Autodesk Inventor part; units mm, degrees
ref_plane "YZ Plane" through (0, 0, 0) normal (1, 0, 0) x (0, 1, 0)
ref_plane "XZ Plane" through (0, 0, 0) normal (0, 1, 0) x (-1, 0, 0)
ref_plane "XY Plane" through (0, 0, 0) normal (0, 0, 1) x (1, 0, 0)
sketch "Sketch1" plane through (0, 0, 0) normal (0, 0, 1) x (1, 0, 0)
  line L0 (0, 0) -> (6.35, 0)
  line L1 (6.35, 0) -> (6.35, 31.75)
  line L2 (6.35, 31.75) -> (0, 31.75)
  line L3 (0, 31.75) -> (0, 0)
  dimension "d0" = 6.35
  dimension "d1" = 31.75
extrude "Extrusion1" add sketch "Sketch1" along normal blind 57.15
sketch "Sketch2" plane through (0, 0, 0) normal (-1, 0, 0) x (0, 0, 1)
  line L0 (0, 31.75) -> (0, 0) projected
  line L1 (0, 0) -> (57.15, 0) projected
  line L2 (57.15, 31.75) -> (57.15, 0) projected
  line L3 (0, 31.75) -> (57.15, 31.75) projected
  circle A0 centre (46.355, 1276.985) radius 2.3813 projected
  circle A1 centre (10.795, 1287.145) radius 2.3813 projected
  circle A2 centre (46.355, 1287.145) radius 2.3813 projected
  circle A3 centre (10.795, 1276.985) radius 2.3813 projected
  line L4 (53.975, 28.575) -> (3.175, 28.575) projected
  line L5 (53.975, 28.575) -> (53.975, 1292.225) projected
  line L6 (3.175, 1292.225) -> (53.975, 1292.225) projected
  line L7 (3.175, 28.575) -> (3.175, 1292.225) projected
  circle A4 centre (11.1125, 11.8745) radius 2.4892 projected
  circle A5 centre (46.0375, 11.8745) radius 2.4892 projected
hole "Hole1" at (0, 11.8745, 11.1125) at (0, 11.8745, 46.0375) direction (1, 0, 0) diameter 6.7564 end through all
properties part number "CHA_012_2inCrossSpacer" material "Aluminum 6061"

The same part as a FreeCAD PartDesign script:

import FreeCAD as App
import Part
import Sketcher

V = App.Vector
Q = App.Units.Quantity


def add_polygon(sketch, points):
    """Adds a closed chain of lines whose ends are joined by coincident constraints."""
    first, n = sketch.GeometryCount, len(points)
    for a, b in zip(points, points[1:] + points[:1]):
        sketch.addGeometry(Part.LineSegment(App.Vector(*a, 0), App.Vector(*b, 0)), False)
    for i in range(n):
        sketch.addConstraint(Sketcher.Constraint("Coincident", first + i, 2, first + (i + 1) % n, 1))

doc = App.newDocument("Part")
body = doc.addObject("PartDesign::Body", "Body")

# Sketch on XY plane
sketch1 = body.newObject("Sketcher::SketchObject", "Sketch")
sketch1.AttachmentSupport = (doc.getObject("XY_Plane"), [""])
sketch1.MapMode = "FlatFace"
add_polygon(sketch1, [(0, 32), (0, 0), (6, 0), (6, 32)])  # lines 0-3
sketch1.addConstraint([
    Sketcher.Constraint("Vertical", 0),
    Sketcher.Constraint("Horizontal", 1),
    Sketcher.Constraint("Vertical", 2),
    Sketcher.Constraint("Horizontal", 3),
    Sketcher.Constraint("Coincident", 0, 2, -1, 1),
    Sketcher.Constraint("DistanceX", 1, 1, 1, 2, Q("0.25 in")),
    Sketcher.Constraint("DistanceY", 0, 2, 0, 1, Q("1.25 in")),
])
pad1 = body.newObject("PartDesign::Pad", "Pad")
pad1.Profile = sketch1
pad1.Length = Q("2.25 in")

# Sketch on YZ plane
sketch2 = body.newObject("Sketcher::SketchObject", "Sketch001")
sketch2.AttachmentSupport = (doc.getObject("YZ_Plane"), [""])
sketch2.MapMode = "FlatFace"
sketch2.addGeometry([
    Part.Circle(V(11.9, 11.1, 0), V(0, 0, 1), 3.4),
    Part.Circle(V(11.9, 46, 0), V(0, 0, 1), 3.4),
], False)
sketch2.addConstraint([
    Sketcher.Constraint("Equal", 0, 1),
    Sketcher.Constraint("Vertical", 0, 3, 1, 3),
    Sketcher.Constraint("Diameter", 0, Q("0.266 in")),
    Sketcher.Constraint("DistanceY", -1, 1, 0, 3, Q("0.4375 in")),
    Sketcher.Constraint("DistanceY", -1, 1, 1, 3, Q("1.8125 in")),
    Sketcher.Constraint("DistanceX", -1, 1, 0, 3, Q("0.4675 in")),
])
doc.recompute()
hole = body.newObject("PartDesign::Hole", "Hole")
hole.Profile = sketch2
hole.ThreadType = "None"
hole.Diameter = Q("0.266 in")
hole.DepthType = "ThroughAll"
hole.Reversed = True

doc.recompute()
